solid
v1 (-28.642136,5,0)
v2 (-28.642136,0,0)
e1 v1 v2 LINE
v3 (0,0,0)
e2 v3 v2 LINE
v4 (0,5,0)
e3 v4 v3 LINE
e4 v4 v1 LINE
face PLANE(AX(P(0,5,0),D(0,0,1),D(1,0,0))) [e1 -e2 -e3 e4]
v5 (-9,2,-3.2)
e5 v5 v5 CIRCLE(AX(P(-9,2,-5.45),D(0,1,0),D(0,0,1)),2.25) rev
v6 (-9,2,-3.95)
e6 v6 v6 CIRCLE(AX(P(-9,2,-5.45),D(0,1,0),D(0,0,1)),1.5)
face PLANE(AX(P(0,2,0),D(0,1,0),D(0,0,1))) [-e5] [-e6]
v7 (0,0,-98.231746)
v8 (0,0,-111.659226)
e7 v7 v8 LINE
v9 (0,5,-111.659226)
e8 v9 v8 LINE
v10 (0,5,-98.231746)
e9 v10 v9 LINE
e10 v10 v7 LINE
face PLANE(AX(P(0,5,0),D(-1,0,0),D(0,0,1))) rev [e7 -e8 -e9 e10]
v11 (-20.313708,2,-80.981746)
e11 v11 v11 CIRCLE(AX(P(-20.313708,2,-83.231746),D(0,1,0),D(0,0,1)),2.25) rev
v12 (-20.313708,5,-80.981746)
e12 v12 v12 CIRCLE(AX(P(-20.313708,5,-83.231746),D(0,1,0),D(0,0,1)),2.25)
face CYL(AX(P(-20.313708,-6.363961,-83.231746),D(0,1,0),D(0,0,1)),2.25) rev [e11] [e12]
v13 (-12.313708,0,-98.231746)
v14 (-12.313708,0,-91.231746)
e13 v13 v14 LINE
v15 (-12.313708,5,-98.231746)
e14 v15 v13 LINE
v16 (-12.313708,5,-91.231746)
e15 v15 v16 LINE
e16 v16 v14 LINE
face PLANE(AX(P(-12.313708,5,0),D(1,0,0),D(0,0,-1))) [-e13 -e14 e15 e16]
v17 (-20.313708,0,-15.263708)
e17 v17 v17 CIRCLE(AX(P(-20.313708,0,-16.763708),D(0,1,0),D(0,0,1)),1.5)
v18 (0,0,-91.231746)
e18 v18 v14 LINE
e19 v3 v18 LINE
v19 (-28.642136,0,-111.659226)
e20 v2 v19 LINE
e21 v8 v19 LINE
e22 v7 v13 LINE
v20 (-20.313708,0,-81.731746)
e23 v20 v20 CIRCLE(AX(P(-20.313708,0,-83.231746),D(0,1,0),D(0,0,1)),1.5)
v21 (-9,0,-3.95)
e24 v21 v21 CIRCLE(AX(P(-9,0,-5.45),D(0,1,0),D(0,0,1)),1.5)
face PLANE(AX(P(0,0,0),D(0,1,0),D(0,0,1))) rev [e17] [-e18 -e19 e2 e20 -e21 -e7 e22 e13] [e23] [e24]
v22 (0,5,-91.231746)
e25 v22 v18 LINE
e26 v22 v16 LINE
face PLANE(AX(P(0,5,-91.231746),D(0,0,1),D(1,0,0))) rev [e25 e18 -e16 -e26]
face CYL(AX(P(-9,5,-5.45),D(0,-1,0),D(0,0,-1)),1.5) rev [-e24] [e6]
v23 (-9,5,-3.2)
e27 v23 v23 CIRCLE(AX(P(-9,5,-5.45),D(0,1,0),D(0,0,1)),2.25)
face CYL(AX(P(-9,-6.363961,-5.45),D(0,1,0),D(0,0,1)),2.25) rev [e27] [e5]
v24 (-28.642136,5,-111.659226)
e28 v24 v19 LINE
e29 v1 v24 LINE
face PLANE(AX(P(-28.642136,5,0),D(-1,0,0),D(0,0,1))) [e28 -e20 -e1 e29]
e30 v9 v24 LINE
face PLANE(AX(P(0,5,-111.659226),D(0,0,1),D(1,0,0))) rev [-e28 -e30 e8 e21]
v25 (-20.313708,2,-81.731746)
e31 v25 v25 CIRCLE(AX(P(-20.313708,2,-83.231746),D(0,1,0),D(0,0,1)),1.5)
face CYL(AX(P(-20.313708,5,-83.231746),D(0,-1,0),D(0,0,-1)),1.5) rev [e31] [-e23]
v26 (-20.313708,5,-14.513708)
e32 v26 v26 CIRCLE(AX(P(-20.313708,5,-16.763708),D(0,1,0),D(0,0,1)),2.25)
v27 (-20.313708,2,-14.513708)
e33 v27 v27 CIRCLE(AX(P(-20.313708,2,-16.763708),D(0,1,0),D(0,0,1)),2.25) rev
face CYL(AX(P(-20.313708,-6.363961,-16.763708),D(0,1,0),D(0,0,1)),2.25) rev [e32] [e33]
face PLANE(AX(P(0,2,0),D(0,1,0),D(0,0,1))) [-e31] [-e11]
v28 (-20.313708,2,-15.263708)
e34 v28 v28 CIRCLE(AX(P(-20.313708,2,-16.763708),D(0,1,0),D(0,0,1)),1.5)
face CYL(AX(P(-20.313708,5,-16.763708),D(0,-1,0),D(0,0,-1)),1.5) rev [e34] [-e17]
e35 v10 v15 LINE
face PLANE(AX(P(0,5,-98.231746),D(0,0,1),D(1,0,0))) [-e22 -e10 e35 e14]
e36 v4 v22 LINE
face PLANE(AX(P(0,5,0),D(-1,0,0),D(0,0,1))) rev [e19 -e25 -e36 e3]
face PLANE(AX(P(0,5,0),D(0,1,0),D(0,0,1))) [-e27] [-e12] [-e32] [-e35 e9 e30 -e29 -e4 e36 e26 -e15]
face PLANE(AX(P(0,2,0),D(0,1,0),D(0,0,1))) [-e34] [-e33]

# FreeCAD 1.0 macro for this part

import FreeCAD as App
import Part
import Sketcher
Q = App.Units.Quantity


def add_polygon(sketch, points):
    """Adds a closed chain of lines whose ends are joined by coincident constraints."""
    first, n = sketch.GeometryCount, len(points)
    for a, b in zip(points, points[1:] + points[:1]):
        sketch.addGeometry(Part.LineSegment(App.Vector(*a, 0), App.Vector(*b, 0)), False)
    for i in range(n):
        sketch.addConstraint(Sketcher.Constraint("Coincident", first + i, 2, first + (i + 1) % n, 1))

doc = App.newDocument("Part")
body = doc.addObject("PartDesign::Body", "Body")

# Sketch on XZ plane
sketch1 = body.newObject("Sketcher::SketchObject", "Sketch")
sketch1.AttachmentSupport = (doc.getObject("XZ_Plane"), [""])
sketch1.MapMode = "FlatFace"
add_polygon(sketch1, [(-28.642136, 0), (0, 0), (0, -91.231746), (-12.313708, -91.231746), (-12.313708, -98.231746), (0, -98.231746), (0, -111.659226), (-28.642136, -111.659226)])  # lines 0-7
sketch1.addConstraint(Sketcher.Constraint("Horizontal", 0))
sketch1.addConstraint(Sketcher.Constraint("Vertical", 1))
sketch1.addConstraint(Sketcher.Constraint("Horizontal", 2))
sketch1.addConstraint(Sketcher.Constraint("Vertical", 3))
sketch1.addConstraint(Sketcher.Constraint("Horizontal", 4))
sketch1.addConstraint(Sketcher.Constraint("Vertical", 5))
sketch1.addConstraint(Sketcher.Constraint("Horizontal", 6))
sketch1.addConstraint(Sketcher.Constraint("Vertical", 7))
sketch1.addConstraint(Sketcher.Constraint("Coincident", 0, 2, -1, 1))
sketch1.addConstraint(Sketcher.Constraint("PointOnObject", 4, 2, -2))
sketch1.addConstraint(Sketcher.Constraint("DistanceY", 3, 2, 3, 1, Q("7 mm")))
sketch1.addConstraint(Sketcher.Constraint("DistanceX", 2, 2, 2, 1, Q("12.313708 mm")))
sketch1.addConstraint(Sketcher.Constraint("DistanceY", 5, 2, 5, 1, Q("13.42748 mm")))
sketch1.addConstraint(Sketcher.Constraint("DistanceX", 0, 1, 0, 2, Q("28.642136 mm")))
sketch1.addConstraint(Sketcher.Constraint("DistanceY", 1, 2, 1, 1, Q("91.231746 mm")))
pad1 = body.newObject("PartDesign::Pad", "Pad")
pad1.Profile = sketch1
pad1.Length = 5
pad1.Reversed = True

# Sketch on XZ plane
sketch2 = body.newObject("Sketcher::SketchObject", "Sketch001")
sketch2.AttachmentSupport = (doc.getObject("XZ_Plane"), [""])
sketch2.MapMode = "FlatFace"
sketch2.addGeometry(Part.Circle(App.Vector(-20.313708, -83.231746, 0), App.Vector(0, 0, 1), 1.5), False)
sketch2.addGeometry(Part.Circle(App.Vector(-20.313708, -16.763708, 0), App.Vector(0, 0, 1), 1.5), False)
sketch2.addGeometry(Part.Circle(App.Vector(-9, -5.45, 0), App.Vector(0, 0, 1), 1.5), False)
sketch2.addConstraint(Sketcher.Constraint("Equal", 0, 1))
sketch2.addConstraint(Sketcher.Constraint("Equal", 1, 2))
sketch2.addConstraint(Sketcher.Constraint("Vertical", 0, 3, 1, 3))
sketch2.addConstraint(Sketcher.Constraint("Diameter", 0, Q("3 mm")))
sketch2.addConstraint(Sketcher.Constraint("DistanceX", 2, 3, -1, 1, Q("9 mm")))
sketch2.addConstraint(Sketcher.Constraint("DistanceY", 2, 3, -1, 1, Q("5.45 mm")))
sketch2.addConstraint(Sketcher.Constraint("DistanceX", 0, 3, -1, 1, Q("20.313708 mm")))
sketch2.addConstraint(Sketcher.Constraint("DistanceY", 1, 3, -1, 1, Q("16.763708 mm")))
sketch2.addConstraint(Sketcher.Constraint("DistanceY", 0, 3, -1, 1, Q("83.231746 mm")))
pocket1 = body.newObject("PartDesign::Pocket", "Pocket")
pocket1.Profile = sketch2
pocket1.Type = "ThroughAll"

# Sketch on XZ plane
sketch3 = body.newObject("Sketcher::SketchObject", "Sketch002")
sketch3.AttachmentSupport = (doc.getObject("XZ_Plane"), [""])
sketch3.MapMode = "FlatFace"
sketch3.AttachmentOffset = App.Placement(App.Vector(0, 0, -5), App.Rotation())
sketch3.addGeometry(Part.Circle(App.Vector(-20.313708, -83.231746, 0), App.Vector(0, 0, 1), 2.25), False)
sketch3.addGeometry(Part.Circle(App.Vector(-9, -5.45, 0), App.Vector(0, 0, 1), 2.25), False)
sketch3.addGeometry(Part.Circle(App.Vector(-20.313708, -16.763708, 0), App.Vector(0, 0, 1), 2.25), False)
sketch3.addConstraint(Sketcher.Constraint("Equal", 0, 1))
sketch3.addConstraint(Sketcher.Constraint("Equal", 1, 2))
sketch3.addConstraint(Sketcher.Constraint("Vertical", 0, 3, 2, 3))
sketch3.addConstraint(Sketcher.Constraint("Diameter", 0, Q("4.5 mm")))
sketch3.addConstraint(Sketcher.Constraint("DistanceX", 1, 3, -1, 1, Q("9 mm")))
sketch3.addConstraint(Sketcher.Constraint("DistanceY", 1, 3, -1, 1, Q("5.45 mm")))
sketch3.addConstraint(Sketcher.Constraint("DistanceX", 0, 3, -1, 1, Q("20.313708 mm")))
sketch3.addConstraint(Sketcher.Constraint("DistanceY", 2, 3, -1, 1, Q("16.763708 mm")))
sketch3.addConstraint(Sketcher.Constraint("DistanceY", 0, 3, -1, 1, Q("83.231746 mm")))
pocket2 = body.newObject("PartDesign::Pocket", "Pocket001")
pocket2.Profile = sketch3
pocket2.Length = 3
pocket2.Reversed = True

doc.recompute()
